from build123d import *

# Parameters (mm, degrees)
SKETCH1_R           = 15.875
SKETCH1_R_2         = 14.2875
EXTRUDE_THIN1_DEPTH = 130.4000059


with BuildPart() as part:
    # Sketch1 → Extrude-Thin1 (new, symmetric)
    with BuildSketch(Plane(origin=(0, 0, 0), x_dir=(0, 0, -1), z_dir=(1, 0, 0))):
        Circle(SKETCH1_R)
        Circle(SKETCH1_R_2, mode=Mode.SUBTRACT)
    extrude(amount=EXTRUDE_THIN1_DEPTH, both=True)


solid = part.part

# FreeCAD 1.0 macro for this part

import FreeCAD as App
import Part
import Sketcher

V = App.Vector
Q = App.Units.Quantity

doc = App.newDocument("Part")
params = doc.addObject("Spreadsheet::Sheet", "Params")
for row, (alias, value) in enumerate([
    ("sketch1_diameter", "1.25 in"),
    ("sketch1_diameter2", "1.125 in"),
    ("pad1_length", "260.800012 mm"),
], start=1):
    params.set(f"A{row}", alias)
    params.set(f"B{row}", "=" + value)
    params.setAlias(f"B{row}", alias)

body = doc.addObject("PartDesign::Body", "Body")

# Sketch on YZ plane
sketch1 = body.newObject("Sketcher::SketchObject", "Sketch")
sketch1.AttachmentSupport = (doc.getObject("YZ_Plane"), [""])
sketch1.MapMode = "FlatFace"
sketch1.addGeometry([
    Part.Circle(V(0, 0, 0), V(0, 0, 1), 15.875),
    Part.Circle(V(0, 0, 0), V(0, 0, 1), 14.2875),
], False)
sketch1.addConstraint([
    Sketcher.Constraint("Coincident", 0, 3, -1, 1),
    Sketcher.Constraint("Coincident", 1, 3, -1, 1),
    Sketcher.Constraint("Diameter", 0, Q("1.25 in")),
    Sketcher.Constraint("Diameter", 1, Q("1.125 in")),
])
sketch1.setExpression("Constraints[2]", "Params.sketch1_diameter")
sketch1.setExpression("Constraints[3]", "Params.sketch1_diameter2")
pad1 = body.newObject("PartDesign::Pad", "Pad")
pad1.Profile = sketch1
pad1.setExpression("Length", "Params.pad1_length")
pad1.Midplane = True

doc.recompute()
